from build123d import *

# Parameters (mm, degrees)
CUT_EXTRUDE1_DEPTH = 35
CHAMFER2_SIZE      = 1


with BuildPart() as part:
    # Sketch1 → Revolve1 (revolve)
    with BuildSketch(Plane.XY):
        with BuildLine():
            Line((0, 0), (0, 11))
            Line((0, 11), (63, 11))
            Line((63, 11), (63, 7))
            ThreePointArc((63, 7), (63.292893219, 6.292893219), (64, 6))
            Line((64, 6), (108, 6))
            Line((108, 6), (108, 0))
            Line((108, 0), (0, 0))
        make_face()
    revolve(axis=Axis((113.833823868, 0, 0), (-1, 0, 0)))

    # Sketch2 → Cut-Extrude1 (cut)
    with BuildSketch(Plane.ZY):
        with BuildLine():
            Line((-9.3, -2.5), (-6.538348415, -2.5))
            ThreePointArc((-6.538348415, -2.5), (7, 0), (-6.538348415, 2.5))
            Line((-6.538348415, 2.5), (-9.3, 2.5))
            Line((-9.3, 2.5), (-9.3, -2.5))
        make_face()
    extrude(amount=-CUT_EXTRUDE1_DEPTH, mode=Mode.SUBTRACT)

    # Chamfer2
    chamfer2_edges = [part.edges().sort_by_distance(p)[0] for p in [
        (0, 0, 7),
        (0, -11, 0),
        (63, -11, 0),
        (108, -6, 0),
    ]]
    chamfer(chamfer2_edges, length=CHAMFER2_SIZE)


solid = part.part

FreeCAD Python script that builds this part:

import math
import FreeCAD as App
import Part
import Sketcher


def edges_at(feature, points):
    """Names of the edges that pass closest to the given points."""
    edges = feature.Shape.Edges
    near = lambda p: min(range(len(edges)), key=lambda i: edges[i].distToShape(Part.Vertex(*p))[0])
    return sorted({f"Edge{near(p) + 1}" for p in points})

doc = App.newDocument("Part")
body = doc.addObject("PartDesign::Body", "Body")

sketch1 = body.newObject("Sketcher::SketchObject", "Sketch")
sketch1.AttachmentSupport = (doc.getObject("XY_Plane"), [""])
sketch1.MapMode = "FlatFace"
sketch1.addGeometry(Part.LineSegment(App.Vector(0, 11, 0), App.Vector(0, 0, 0)), False)
sketch1.addGeometry(Part.LineSegment(App.Vector(0, 0, 0), App.Vector(108, 0, 0)), False)
sketch1.addGeometry(Part.LineSegment(App.Vector(108, 0, 0), App.Vector(108, 6, 0)), False)
sketch1.addGeometry(Part.LineSegment(App.Vector(108, 6, 0), App.Vector(64, 6, 0)), False)
sketch1.addGeometry(Part.ArcOfCircle(Part.Circle(App.Vector(64, 7, 0), App.Vector(0, 0, 1), 1), math.radians(-180), math.radians(-90)), False)
sketch1.addGeometry(Part.LineSegment(App.Vector(63, 7, 0), App.Vector(63, 11, 0)), False)
sketch1.addGeometry(Part.LineSegment(App.Vector(63, 11, 0), App.Vector(0, 11, 0)), False)
sketch1.addConstraint(Sketcher.Constraint("Coincident", 0, 2, 1, 1))
sketch1.addConstraint(Sketcher.Constraint("Coincident", 1, 2, 2, 1))
sketch1.addConstraint(Sketcher.Constraint("Coincident", 2, 2, 3, 1))
sketch1.addConstraint(Sketcher.Constraint("Tangent", 3, 2, 4, 2))
sketch1.addConstraint(Sketcher.Constraint("Tangent", 4, 1, 5, 1))
sketch1.addConstraint(Sketcher.Constraint("Coincident", 5, 2, 6, 1))
sketch1.addConstraint(Sketcher.Constraint("Coincident", 6, 2, 0, 1))
sketch1.addConstraint(Sketcher.Constraint("Vertical", 0))
sketch1.addConstraint(Sketcher.Constraint("Horizontal", 1))
sketch1.addConstraint(Sketcher.Constraint("Vertical", 2))
sketch1.addConstraint(Sketcher.Constraint("Horizontal", 3))
sketch1.addConstraint(Sketcher.Constraint("Vertical", 5))
sketch1.addConstraint(Sketcher.Constraint("Horizontal", 6))
sketch1.addConstraint(Sketcher.Constraint("Coincident", 0, 2, -1, 1))
sketch1.addConstraint(Sketcher.Constraint("Radius", 4, 1.0))
sketch1.addConstraint(Sketcher.Constraint("DistanceX", 1, 1, 1, 2, 108.0))
sketch1.addConstraint(Sketcher.Constraint("DistanceX", 3, 2, 3, 1, 44.0))
sketch1.addConstraint(Sketcher.Constraint("DistanceY", 0, 2, 0, 1, 11.0))
sketch1.addConstraint(Sketcher.Constraint("DistanceY", 2, 1, 2, 2, 6.0))
revolution = body.newObject("PartDesign::Revolution", "Revolution")
revolution.Profile = sketch1
revolution.ReferenceAxis = (sketch1, ["H_Axis"])
revolution.Angle = 360

sketch2 = body.newObject("Sketcher::SketchObject", "Sketch001")
sketch2.AttachmentSupport = (doc.getObject("YZ_Plane"), [""])
sketch2.MapMode = "FlatFace"
sketch2.addGeometry(Part.LineSegment(App.Vector(-2.5, -9.3, 0), App.Vector(-2.5, -6.538348, 0)), False)
sketch2.addGeometry(Part.ArcOfCircle(Part.Circle(App.Vector(0, 0, 0), App.Vector(0, 0, 1), 7), math.radians(-69.075168), math.radians(249.075168)), False)
sketch2.addGeometry(Part.LineSegment(App.Vector(2.5, -6.538348, 0), App.Vector(2.5, -9.3, 0)), False)
sketch2.addGeometry(Part.LineSegment(App.Vector(2.5, -9.3, 0), App.Vector(-2.5, -9.3, 0)), False)
sketch2.addConstraint(Sketcher.Constraint("Coincident", 0, 2, 1, 2))
sketch2.addConstraint(Sketcher.Constraint("Coincident", 1, 1, 2, 1))
sketch2.addConstraint(Sketcher.Constraint("Coincident", 2, 2, 3, 1))
sketch2.addConstraint(Sketcher.Constraint("Coincident", 3, 2, 0, 1))
sketch2.addConstraint(Sketcher.Constraint("Vertical", 0))
sketch2.addConstraint(Sketcher.Constraint("Vertical", 2))
sketch2.addConstraint(Sketcher.Constraint("Horizontal", 3))
sketch2.addConstraint(Sketcher.Constraint("Coincident", 1, 3, -1, 1))
sketch2.addConstraint(Sketcher.Constraint("Horizontal", 0, 2, 1, 1))
sketch2.addConstraint(Sketcher.Constraint("Radius", 1, 7.0))
sketch2.addConstraint(Sketcher.Constraint("DistanceX", 3, 2, 3, 1, 5.0))
sketch2.addConstraint(Sketcher.Constraint("DistanceY", 2, 2, -1, 1, 9.3))
pocket1 = body.newObject("PartDesign::Pocket", "Pocket")
pocket1.Profile = sketch2
pocket1.Length = 35
pocket1.Reversed = True
doc.recompute()

chamfer = body.newObject("PartDesign::Chamfer", "Chamfer")
chamfer.Base = (pocket1, edges_at(pocket1, [
    (0, 0, 7),
    (0, -11, 0),
    (63, -11, 0),
    (108, -6, 0),
]))
chamfer.Size = 1

doc.recompute()
